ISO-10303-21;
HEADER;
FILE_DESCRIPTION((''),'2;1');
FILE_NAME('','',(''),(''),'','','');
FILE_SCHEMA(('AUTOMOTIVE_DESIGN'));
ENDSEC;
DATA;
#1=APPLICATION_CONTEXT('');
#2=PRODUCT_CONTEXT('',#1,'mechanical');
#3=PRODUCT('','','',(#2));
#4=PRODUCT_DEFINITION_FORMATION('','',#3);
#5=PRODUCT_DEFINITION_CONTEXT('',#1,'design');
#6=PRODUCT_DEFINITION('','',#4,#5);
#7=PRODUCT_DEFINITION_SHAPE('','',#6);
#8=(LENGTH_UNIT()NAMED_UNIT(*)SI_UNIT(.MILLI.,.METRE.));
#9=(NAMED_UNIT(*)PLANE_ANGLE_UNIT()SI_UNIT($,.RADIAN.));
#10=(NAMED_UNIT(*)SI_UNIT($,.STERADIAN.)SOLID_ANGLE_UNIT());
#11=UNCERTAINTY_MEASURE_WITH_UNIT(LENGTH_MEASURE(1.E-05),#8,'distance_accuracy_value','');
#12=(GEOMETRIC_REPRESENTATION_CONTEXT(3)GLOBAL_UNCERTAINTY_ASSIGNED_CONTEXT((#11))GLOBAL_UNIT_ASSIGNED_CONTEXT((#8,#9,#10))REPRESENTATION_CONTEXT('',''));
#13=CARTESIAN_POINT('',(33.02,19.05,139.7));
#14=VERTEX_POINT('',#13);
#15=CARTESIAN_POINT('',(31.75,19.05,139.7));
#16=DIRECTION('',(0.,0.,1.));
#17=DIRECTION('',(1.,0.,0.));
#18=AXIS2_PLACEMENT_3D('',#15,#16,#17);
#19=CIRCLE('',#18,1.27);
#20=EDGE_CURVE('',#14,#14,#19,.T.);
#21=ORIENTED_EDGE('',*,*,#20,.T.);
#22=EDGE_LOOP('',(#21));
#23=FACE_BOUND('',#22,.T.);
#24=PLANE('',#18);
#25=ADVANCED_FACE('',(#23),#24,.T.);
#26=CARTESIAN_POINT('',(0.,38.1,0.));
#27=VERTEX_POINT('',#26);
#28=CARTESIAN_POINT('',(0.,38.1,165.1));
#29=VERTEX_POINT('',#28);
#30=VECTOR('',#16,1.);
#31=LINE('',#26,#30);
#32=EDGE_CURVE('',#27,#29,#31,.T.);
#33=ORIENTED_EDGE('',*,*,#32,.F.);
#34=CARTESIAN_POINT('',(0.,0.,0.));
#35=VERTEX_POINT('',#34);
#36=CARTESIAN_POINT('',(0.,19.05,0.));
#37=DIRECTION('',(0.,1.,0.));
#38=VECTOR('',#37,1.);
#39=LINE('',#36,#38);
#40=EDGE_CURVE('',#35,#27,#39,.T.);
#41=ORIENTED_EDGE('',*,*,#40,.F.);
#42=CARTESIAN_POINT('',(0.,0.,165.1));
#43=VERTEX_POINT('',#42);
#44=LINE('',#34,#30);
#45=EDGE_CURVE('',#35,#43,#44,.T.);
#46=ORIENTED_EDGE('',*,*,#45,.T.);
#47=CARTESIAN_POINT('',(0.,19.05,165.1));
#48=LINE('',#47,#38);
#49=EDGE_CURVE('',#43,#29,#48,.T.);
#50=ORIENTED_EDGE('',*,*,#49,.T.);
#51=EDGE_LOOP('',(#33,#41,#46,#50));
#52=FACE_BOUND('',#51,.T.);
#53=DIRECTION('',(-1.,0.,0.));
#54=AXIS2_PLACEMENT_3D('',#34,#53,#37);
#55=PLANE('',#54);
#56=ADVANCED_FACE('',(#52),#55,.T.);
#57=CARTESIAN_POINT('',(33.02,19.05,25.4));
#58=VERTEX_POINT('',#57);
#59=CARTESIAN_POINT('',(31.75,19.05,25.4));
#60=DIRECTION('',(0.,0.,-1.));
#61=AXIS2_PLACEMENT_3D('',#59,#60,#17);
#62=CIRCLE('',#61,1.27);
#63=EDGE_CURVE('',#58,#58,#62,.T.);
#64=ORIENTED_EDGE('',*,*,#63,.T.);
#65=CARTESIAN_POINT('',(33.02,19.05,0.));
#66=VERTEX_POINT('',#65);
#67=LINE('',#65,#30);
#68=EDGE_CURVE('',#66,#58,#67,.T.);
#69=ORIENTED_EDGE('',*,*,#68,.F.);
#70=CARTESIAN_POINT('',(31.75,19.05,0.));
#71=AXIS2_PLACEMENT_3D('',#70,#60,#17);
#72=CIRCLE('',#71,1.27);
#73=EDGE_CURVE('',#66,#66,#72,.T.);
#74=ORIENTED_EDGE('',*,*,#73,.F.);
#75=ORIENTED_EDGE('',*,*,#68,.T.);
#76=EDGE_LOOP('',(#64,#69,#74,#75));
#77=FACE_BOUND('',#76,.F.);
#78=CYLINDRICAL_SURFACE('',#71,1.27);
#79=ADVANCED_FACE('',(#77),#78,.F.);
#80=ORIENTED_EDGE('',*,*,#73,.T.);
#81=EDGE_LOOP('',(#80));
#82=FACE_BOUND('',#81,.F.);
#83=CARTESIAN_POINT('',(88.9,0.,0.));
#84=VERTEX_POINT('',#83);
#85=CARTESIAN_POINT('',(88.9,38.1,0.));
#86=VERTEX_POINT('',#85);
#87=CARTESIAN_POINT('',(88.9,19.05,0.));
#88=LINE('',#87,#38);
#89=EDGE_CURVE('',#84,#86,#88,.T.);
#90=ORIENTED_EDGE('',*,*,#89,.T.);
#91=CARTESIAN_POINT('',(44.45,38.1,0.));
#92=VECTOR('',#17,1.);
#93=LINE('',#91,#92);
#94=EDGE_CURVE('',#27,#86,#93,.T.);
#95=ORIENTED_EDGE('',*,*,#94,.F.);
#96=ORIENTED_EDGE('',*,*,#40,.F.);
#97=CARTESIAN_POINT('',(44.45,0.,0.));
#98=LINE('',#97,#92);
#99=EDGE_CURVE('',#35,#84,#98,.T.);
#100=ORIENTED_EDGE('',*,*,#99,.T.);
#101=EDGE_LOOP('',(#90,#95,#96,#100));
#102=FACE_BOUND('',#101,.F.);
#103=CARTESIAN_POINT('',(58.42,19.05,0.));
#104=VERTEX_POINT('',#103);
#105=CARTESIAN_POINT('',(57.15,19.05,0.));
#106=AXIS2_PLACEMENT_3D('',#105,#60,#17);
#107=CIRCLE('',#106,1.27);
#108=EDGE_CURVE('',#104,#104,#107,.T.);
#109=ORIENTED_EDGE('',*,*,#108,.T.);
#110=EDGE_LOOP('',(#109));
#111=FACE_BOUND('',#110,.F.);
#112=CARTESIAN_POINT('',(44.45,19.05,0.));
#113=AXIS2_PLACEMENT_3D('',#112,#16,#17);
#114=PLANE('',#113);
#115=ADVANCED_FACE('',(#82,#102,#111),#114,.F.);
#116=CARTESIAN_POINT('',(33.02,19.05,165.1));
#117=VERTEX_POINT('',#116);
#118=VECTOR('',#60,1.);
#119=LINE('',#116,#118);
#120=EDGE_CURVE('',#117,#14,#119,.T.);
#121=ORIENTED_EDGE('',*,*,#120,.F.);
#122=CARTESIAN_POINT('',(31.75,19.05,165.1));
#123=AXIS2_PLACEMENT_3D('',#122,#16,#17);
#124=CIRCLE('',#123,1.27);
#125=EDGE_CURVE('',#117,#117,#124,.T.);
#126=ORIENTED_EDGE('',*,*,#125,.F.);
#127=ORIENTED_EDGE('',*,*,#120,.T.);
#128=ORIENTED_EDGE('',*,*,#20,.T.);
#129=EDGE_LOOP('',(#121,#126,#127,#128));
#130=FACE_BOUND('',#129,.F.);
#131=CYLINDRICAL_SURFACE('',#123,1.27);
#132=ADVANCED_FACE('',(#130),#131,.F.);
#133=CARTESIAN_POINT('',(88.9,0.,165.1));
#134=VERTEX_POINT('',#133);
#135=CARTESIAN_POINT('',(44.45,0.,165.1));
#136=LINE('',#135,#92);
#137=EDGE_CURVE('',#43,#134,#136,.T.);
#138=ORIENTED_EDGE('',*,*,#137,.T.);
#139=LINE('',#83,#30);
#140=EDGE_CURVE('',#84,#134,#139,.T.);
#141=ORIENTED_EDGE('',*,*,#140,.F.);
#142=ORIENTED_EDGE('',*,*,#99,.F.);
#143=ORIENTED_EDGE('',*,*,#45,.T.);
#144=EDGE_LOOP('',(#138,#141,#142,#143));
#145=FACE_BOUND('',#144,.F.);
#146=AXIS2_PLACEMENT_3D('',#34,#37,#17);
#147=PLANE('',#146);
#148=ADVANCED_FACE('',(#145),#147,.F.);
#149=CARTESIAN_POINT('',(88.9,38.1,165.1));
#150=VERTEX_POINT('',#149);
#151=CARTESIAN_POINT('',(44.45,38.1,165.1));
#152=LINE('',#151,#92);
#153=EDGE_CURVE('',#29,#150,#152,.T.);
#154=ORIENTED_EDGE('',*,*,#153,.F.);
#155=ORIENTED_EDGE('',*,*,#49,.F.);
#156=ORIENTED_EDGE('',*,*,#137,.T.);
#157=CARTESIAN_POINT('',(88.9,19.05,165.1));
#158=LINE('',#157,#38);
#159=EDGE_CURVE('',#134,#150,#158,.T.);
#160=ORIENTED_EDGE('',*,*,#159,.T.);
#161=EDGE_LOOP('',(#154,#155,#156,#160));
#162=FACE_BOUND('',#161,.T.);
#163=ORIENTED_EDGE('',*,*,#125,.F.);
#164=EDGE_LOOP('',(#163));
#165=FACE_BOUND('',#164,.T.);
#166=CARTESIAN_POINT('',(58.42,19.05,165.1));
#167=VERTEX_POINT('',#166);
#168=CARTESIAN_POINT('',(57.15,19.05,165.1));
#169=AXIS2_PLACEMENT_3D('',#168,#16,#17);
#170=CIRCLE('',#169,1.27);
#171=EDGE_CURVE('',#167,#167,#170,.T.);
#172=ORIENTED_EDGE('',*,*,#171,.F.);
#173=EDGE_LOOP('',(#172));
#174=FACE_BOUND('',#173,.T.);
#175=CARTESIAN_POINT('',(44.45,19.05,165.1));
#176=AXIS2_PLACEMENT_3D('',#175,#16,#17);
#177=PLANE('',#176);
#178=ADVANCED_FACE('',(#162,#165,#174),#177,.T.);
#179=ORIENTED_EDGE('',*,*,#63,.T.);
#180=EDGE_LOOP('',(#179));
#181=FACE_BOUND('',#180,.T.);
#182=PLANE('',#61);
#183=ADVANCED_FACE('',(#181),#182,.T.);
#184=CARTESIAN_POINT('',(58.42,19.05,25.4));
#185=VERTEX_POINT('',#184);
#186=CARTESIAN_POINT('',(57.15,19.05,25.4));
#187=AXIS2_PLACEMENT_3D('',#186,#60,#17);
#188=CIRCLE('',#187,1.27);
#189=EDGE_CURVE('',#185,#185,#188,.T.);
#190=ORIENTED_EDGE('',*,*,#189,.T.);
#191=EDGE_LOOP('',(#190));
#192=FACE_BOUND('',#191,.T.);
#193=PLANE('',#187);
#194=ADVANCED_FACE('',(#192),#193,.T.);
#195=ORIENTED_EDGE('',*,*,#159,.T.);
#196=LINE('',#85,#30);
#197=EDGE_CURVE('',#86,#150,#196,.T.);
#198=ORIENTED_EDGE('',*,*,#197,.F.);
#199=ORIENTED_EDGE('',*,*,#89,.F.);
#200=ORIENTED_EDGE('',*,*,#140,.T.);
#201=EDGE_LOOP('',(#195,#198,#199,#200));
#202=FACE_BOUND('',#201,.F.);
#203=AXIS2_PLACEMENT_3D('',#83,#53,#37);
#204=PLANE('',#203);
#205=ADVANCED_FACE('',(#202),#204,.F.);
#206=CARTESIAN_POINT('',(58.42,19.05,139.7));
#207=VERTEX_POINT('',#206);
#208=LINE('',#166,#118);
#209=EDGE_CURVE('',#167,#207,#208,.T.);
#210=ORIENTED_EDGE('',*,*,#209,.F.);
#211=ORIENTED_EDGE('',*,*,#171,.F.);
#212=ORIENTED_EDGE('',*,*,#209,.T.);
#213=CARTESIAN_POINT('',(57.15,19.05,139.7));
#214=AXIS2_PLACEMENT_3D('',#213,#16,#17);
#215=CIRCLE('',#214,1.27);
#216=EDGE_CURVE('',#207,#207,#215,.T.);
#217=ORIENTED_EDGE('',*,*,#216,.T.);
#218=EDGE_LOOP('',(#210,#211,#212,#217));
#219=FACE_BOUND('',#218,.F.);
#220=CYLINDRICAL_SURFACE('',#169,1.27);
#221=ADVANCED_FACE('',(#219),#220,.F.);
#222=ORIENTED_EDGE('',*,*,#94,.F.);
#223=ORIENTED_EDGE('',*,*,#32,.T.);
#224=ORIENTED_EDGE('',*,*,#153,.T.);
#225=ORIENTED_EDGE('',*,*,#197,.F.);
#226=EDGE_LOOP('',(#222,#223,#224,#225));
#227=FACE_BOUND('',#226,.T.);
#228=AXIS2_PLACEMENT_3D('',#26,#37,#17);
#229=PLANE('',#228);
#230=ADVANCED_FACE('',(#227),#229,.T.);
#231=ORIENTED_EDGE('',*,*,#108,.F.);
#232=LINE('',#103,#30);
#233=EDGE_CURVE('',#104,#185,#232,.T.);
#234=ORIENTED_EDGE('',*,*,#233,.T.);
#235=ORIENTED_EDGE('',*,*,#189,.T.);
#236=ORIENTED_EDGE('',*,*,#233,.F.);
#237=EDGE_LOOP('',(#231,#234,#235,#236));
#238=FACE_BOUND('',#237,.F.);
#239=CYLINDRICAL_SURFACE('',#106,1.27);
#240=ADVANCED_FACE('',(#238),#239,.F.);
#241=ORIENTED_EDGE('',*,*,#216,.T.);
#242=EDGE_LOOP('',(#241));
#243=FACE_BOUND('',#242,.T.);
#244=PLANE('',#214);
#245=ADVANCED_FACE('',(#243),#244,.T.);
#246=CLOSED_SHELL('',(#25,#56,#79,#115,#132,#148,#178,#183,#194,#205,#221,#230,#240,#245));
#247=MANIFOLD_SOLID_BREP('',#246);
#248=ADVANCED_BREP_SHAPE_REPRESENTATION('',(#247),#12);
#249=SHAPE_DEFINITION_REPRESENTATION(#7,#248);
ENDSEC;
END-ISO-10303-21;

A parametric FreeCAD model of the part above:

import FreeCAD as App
import Part
import Sketcher

V = App.Vector
Q = App.Units.Quantity


def add_polygon(sketch, points):
    """Adds a closed chain of lines whose ends are joined by coincident constraints."""
    first, n = sketch.GeometryCount, len(points)
    for a, b in zip(points, points[1:] + points[:1]):
        sketch.addGeometry(Part.LineSegment(App.Vector(*a, 0), App.Vector(*b, 0)), False)
    for i in range(n):
        sketch.addConstraint(Sketcher.Constraint("Coincident", first + i, 2, first + (i + 1) % n, 1))

doc = App.newDocument("Part")
body = doc.addObject("PartDesign::Body", "Body")
body.AllowCompound = True

sketch1 = body.newObject("Sketcher::SketchObject", "Sketch")
sketch1.AttachmentSupport = (doc.getObject("XY_Plane"), [""])
sketch1.MapMode = "FlatFace"
sketch1.addGeometry([
    Part.Circle(V(31.8, 19.1, 0), V(0, 0, 1), 1.3),
    Part.Circle(V(57.1, 19.1, 0), V(0, 0, 1), 1.3),
], False)
sketch1.addConstraint([
    Sketcher.Constraint("Equal", 0, 1),
    Sketcher.Constraint("Horizontal", 0, 3, 1, 3),
    Sketcher.Constraint("Diameter", 0, Q("0.1 in")),
    Sketcher.Constraint("DistanceX", 0, 3, 1, 3, Q("1 in")),
    Sketcher.Constraint("DistanceX", -1, 1, 0, 3, Q("1.25 in")),
    Sketcher.Constraint("DistanceY", -1, 1, 0, 3, Q("0.75 in")),
])
pad1 = body.newObject("PartDesign::Pad", "Pad")
pad1.Profile = sketch1
pad1.Length = Q("1 in")
body2 = doc.addObject("PartDesign::Body", "Body001")
body2.AllowCompound = True

sketch2 = body2.newObject("Sketcher::SketchObject", "Sketch001")
sketch2.AttachmentSupport = (doc.getObject("XY_Plane001"), [""])
sketch2.MapMode = "FlatFace"
sketch2.AttachmentOffset = App.Placement(V(0, 0, 6.5 * 25.4), App.Rotation())
sketch2.addGeometry([
    Part.Circle(V(31.8, 19.1, 0), V(0, 0, 1), 1.3),
    Part.Circle(V(57.1, 19.1, 0), V(0, 0, 1), 1.3),
], False)
sketch2.addConstraint([
    Sketcher.Constraint("Equal", 0, 1),
    Sketcher.Constraint("Horizontal", 0, 3, 1, 3),
    Sketcher.Constraint("Diameter", 0, Q("0.1 in")),
    Sketcher.Constraint("DistanceX", 0, 3, 1, 3, Q("1 in")),
    Sketcher.Constraint("DistanceX", -1, 1, 0, 3, Q("1.25 in")),
    Sketcher.Constraint("DistanceY", -1, 1, 0, 3, Q("0.75 in")),
])
pad2 = body2.newObject("PartDesign::Pad", "Pad001")
pad2.Profile = sketch2
pad2.Length = Q("1 in")
pad2.Reversed = True
body3 = doc.addObject("PartDesign::Body", "Body002")

sketch3 = body3.newObject("Sketcher::SketchObject", "Sketch002")
sketch3.AttachmentSupport = (doc.getObject("XY_Plane002"), [""])
sketch3.MapMode = "FlatFace"
add_polygon(sketch3, [(0, 38), (0, 0), (89, 0), (89, 38)])
sketch3.addConstraint([
    Sketcher.Constraint("Vertical", 0),
    Sketcher.Constraint("Horizontal", 1),
    Sketcher.Constraint("Vertical", 2),
    Sketcher.Constraint("Horizontal", 3),
    Sketcher.Constraint("Coincident", 0, 2, -1, 1),
    Sketcher.Constraint("DistanceX", 1, 1, 1, 2, Q("3.5 in")),
    Sketcher.Constraint("DistanceY", 0, 2, 0, 1, Q("1.5 in")),
])
pad3 = body3.newObject("PartDesign::Pad", "Pad002")
pad3.Profile = sketch3
pad3.Length = Q("6.5 in")
doc.recompute()

boolean = body3.newObject("PartDesign::Boolean", "Boolean")
boolean.Type = "Cut"
boolean.addObjects([body2])
doc.recompute()

boolean2 = body3.newObject("PartDesign::Boolean", "Boolean001")
boolean2.Type = "Cut"
boolean2.addObjects([body])

doc.recompute()
